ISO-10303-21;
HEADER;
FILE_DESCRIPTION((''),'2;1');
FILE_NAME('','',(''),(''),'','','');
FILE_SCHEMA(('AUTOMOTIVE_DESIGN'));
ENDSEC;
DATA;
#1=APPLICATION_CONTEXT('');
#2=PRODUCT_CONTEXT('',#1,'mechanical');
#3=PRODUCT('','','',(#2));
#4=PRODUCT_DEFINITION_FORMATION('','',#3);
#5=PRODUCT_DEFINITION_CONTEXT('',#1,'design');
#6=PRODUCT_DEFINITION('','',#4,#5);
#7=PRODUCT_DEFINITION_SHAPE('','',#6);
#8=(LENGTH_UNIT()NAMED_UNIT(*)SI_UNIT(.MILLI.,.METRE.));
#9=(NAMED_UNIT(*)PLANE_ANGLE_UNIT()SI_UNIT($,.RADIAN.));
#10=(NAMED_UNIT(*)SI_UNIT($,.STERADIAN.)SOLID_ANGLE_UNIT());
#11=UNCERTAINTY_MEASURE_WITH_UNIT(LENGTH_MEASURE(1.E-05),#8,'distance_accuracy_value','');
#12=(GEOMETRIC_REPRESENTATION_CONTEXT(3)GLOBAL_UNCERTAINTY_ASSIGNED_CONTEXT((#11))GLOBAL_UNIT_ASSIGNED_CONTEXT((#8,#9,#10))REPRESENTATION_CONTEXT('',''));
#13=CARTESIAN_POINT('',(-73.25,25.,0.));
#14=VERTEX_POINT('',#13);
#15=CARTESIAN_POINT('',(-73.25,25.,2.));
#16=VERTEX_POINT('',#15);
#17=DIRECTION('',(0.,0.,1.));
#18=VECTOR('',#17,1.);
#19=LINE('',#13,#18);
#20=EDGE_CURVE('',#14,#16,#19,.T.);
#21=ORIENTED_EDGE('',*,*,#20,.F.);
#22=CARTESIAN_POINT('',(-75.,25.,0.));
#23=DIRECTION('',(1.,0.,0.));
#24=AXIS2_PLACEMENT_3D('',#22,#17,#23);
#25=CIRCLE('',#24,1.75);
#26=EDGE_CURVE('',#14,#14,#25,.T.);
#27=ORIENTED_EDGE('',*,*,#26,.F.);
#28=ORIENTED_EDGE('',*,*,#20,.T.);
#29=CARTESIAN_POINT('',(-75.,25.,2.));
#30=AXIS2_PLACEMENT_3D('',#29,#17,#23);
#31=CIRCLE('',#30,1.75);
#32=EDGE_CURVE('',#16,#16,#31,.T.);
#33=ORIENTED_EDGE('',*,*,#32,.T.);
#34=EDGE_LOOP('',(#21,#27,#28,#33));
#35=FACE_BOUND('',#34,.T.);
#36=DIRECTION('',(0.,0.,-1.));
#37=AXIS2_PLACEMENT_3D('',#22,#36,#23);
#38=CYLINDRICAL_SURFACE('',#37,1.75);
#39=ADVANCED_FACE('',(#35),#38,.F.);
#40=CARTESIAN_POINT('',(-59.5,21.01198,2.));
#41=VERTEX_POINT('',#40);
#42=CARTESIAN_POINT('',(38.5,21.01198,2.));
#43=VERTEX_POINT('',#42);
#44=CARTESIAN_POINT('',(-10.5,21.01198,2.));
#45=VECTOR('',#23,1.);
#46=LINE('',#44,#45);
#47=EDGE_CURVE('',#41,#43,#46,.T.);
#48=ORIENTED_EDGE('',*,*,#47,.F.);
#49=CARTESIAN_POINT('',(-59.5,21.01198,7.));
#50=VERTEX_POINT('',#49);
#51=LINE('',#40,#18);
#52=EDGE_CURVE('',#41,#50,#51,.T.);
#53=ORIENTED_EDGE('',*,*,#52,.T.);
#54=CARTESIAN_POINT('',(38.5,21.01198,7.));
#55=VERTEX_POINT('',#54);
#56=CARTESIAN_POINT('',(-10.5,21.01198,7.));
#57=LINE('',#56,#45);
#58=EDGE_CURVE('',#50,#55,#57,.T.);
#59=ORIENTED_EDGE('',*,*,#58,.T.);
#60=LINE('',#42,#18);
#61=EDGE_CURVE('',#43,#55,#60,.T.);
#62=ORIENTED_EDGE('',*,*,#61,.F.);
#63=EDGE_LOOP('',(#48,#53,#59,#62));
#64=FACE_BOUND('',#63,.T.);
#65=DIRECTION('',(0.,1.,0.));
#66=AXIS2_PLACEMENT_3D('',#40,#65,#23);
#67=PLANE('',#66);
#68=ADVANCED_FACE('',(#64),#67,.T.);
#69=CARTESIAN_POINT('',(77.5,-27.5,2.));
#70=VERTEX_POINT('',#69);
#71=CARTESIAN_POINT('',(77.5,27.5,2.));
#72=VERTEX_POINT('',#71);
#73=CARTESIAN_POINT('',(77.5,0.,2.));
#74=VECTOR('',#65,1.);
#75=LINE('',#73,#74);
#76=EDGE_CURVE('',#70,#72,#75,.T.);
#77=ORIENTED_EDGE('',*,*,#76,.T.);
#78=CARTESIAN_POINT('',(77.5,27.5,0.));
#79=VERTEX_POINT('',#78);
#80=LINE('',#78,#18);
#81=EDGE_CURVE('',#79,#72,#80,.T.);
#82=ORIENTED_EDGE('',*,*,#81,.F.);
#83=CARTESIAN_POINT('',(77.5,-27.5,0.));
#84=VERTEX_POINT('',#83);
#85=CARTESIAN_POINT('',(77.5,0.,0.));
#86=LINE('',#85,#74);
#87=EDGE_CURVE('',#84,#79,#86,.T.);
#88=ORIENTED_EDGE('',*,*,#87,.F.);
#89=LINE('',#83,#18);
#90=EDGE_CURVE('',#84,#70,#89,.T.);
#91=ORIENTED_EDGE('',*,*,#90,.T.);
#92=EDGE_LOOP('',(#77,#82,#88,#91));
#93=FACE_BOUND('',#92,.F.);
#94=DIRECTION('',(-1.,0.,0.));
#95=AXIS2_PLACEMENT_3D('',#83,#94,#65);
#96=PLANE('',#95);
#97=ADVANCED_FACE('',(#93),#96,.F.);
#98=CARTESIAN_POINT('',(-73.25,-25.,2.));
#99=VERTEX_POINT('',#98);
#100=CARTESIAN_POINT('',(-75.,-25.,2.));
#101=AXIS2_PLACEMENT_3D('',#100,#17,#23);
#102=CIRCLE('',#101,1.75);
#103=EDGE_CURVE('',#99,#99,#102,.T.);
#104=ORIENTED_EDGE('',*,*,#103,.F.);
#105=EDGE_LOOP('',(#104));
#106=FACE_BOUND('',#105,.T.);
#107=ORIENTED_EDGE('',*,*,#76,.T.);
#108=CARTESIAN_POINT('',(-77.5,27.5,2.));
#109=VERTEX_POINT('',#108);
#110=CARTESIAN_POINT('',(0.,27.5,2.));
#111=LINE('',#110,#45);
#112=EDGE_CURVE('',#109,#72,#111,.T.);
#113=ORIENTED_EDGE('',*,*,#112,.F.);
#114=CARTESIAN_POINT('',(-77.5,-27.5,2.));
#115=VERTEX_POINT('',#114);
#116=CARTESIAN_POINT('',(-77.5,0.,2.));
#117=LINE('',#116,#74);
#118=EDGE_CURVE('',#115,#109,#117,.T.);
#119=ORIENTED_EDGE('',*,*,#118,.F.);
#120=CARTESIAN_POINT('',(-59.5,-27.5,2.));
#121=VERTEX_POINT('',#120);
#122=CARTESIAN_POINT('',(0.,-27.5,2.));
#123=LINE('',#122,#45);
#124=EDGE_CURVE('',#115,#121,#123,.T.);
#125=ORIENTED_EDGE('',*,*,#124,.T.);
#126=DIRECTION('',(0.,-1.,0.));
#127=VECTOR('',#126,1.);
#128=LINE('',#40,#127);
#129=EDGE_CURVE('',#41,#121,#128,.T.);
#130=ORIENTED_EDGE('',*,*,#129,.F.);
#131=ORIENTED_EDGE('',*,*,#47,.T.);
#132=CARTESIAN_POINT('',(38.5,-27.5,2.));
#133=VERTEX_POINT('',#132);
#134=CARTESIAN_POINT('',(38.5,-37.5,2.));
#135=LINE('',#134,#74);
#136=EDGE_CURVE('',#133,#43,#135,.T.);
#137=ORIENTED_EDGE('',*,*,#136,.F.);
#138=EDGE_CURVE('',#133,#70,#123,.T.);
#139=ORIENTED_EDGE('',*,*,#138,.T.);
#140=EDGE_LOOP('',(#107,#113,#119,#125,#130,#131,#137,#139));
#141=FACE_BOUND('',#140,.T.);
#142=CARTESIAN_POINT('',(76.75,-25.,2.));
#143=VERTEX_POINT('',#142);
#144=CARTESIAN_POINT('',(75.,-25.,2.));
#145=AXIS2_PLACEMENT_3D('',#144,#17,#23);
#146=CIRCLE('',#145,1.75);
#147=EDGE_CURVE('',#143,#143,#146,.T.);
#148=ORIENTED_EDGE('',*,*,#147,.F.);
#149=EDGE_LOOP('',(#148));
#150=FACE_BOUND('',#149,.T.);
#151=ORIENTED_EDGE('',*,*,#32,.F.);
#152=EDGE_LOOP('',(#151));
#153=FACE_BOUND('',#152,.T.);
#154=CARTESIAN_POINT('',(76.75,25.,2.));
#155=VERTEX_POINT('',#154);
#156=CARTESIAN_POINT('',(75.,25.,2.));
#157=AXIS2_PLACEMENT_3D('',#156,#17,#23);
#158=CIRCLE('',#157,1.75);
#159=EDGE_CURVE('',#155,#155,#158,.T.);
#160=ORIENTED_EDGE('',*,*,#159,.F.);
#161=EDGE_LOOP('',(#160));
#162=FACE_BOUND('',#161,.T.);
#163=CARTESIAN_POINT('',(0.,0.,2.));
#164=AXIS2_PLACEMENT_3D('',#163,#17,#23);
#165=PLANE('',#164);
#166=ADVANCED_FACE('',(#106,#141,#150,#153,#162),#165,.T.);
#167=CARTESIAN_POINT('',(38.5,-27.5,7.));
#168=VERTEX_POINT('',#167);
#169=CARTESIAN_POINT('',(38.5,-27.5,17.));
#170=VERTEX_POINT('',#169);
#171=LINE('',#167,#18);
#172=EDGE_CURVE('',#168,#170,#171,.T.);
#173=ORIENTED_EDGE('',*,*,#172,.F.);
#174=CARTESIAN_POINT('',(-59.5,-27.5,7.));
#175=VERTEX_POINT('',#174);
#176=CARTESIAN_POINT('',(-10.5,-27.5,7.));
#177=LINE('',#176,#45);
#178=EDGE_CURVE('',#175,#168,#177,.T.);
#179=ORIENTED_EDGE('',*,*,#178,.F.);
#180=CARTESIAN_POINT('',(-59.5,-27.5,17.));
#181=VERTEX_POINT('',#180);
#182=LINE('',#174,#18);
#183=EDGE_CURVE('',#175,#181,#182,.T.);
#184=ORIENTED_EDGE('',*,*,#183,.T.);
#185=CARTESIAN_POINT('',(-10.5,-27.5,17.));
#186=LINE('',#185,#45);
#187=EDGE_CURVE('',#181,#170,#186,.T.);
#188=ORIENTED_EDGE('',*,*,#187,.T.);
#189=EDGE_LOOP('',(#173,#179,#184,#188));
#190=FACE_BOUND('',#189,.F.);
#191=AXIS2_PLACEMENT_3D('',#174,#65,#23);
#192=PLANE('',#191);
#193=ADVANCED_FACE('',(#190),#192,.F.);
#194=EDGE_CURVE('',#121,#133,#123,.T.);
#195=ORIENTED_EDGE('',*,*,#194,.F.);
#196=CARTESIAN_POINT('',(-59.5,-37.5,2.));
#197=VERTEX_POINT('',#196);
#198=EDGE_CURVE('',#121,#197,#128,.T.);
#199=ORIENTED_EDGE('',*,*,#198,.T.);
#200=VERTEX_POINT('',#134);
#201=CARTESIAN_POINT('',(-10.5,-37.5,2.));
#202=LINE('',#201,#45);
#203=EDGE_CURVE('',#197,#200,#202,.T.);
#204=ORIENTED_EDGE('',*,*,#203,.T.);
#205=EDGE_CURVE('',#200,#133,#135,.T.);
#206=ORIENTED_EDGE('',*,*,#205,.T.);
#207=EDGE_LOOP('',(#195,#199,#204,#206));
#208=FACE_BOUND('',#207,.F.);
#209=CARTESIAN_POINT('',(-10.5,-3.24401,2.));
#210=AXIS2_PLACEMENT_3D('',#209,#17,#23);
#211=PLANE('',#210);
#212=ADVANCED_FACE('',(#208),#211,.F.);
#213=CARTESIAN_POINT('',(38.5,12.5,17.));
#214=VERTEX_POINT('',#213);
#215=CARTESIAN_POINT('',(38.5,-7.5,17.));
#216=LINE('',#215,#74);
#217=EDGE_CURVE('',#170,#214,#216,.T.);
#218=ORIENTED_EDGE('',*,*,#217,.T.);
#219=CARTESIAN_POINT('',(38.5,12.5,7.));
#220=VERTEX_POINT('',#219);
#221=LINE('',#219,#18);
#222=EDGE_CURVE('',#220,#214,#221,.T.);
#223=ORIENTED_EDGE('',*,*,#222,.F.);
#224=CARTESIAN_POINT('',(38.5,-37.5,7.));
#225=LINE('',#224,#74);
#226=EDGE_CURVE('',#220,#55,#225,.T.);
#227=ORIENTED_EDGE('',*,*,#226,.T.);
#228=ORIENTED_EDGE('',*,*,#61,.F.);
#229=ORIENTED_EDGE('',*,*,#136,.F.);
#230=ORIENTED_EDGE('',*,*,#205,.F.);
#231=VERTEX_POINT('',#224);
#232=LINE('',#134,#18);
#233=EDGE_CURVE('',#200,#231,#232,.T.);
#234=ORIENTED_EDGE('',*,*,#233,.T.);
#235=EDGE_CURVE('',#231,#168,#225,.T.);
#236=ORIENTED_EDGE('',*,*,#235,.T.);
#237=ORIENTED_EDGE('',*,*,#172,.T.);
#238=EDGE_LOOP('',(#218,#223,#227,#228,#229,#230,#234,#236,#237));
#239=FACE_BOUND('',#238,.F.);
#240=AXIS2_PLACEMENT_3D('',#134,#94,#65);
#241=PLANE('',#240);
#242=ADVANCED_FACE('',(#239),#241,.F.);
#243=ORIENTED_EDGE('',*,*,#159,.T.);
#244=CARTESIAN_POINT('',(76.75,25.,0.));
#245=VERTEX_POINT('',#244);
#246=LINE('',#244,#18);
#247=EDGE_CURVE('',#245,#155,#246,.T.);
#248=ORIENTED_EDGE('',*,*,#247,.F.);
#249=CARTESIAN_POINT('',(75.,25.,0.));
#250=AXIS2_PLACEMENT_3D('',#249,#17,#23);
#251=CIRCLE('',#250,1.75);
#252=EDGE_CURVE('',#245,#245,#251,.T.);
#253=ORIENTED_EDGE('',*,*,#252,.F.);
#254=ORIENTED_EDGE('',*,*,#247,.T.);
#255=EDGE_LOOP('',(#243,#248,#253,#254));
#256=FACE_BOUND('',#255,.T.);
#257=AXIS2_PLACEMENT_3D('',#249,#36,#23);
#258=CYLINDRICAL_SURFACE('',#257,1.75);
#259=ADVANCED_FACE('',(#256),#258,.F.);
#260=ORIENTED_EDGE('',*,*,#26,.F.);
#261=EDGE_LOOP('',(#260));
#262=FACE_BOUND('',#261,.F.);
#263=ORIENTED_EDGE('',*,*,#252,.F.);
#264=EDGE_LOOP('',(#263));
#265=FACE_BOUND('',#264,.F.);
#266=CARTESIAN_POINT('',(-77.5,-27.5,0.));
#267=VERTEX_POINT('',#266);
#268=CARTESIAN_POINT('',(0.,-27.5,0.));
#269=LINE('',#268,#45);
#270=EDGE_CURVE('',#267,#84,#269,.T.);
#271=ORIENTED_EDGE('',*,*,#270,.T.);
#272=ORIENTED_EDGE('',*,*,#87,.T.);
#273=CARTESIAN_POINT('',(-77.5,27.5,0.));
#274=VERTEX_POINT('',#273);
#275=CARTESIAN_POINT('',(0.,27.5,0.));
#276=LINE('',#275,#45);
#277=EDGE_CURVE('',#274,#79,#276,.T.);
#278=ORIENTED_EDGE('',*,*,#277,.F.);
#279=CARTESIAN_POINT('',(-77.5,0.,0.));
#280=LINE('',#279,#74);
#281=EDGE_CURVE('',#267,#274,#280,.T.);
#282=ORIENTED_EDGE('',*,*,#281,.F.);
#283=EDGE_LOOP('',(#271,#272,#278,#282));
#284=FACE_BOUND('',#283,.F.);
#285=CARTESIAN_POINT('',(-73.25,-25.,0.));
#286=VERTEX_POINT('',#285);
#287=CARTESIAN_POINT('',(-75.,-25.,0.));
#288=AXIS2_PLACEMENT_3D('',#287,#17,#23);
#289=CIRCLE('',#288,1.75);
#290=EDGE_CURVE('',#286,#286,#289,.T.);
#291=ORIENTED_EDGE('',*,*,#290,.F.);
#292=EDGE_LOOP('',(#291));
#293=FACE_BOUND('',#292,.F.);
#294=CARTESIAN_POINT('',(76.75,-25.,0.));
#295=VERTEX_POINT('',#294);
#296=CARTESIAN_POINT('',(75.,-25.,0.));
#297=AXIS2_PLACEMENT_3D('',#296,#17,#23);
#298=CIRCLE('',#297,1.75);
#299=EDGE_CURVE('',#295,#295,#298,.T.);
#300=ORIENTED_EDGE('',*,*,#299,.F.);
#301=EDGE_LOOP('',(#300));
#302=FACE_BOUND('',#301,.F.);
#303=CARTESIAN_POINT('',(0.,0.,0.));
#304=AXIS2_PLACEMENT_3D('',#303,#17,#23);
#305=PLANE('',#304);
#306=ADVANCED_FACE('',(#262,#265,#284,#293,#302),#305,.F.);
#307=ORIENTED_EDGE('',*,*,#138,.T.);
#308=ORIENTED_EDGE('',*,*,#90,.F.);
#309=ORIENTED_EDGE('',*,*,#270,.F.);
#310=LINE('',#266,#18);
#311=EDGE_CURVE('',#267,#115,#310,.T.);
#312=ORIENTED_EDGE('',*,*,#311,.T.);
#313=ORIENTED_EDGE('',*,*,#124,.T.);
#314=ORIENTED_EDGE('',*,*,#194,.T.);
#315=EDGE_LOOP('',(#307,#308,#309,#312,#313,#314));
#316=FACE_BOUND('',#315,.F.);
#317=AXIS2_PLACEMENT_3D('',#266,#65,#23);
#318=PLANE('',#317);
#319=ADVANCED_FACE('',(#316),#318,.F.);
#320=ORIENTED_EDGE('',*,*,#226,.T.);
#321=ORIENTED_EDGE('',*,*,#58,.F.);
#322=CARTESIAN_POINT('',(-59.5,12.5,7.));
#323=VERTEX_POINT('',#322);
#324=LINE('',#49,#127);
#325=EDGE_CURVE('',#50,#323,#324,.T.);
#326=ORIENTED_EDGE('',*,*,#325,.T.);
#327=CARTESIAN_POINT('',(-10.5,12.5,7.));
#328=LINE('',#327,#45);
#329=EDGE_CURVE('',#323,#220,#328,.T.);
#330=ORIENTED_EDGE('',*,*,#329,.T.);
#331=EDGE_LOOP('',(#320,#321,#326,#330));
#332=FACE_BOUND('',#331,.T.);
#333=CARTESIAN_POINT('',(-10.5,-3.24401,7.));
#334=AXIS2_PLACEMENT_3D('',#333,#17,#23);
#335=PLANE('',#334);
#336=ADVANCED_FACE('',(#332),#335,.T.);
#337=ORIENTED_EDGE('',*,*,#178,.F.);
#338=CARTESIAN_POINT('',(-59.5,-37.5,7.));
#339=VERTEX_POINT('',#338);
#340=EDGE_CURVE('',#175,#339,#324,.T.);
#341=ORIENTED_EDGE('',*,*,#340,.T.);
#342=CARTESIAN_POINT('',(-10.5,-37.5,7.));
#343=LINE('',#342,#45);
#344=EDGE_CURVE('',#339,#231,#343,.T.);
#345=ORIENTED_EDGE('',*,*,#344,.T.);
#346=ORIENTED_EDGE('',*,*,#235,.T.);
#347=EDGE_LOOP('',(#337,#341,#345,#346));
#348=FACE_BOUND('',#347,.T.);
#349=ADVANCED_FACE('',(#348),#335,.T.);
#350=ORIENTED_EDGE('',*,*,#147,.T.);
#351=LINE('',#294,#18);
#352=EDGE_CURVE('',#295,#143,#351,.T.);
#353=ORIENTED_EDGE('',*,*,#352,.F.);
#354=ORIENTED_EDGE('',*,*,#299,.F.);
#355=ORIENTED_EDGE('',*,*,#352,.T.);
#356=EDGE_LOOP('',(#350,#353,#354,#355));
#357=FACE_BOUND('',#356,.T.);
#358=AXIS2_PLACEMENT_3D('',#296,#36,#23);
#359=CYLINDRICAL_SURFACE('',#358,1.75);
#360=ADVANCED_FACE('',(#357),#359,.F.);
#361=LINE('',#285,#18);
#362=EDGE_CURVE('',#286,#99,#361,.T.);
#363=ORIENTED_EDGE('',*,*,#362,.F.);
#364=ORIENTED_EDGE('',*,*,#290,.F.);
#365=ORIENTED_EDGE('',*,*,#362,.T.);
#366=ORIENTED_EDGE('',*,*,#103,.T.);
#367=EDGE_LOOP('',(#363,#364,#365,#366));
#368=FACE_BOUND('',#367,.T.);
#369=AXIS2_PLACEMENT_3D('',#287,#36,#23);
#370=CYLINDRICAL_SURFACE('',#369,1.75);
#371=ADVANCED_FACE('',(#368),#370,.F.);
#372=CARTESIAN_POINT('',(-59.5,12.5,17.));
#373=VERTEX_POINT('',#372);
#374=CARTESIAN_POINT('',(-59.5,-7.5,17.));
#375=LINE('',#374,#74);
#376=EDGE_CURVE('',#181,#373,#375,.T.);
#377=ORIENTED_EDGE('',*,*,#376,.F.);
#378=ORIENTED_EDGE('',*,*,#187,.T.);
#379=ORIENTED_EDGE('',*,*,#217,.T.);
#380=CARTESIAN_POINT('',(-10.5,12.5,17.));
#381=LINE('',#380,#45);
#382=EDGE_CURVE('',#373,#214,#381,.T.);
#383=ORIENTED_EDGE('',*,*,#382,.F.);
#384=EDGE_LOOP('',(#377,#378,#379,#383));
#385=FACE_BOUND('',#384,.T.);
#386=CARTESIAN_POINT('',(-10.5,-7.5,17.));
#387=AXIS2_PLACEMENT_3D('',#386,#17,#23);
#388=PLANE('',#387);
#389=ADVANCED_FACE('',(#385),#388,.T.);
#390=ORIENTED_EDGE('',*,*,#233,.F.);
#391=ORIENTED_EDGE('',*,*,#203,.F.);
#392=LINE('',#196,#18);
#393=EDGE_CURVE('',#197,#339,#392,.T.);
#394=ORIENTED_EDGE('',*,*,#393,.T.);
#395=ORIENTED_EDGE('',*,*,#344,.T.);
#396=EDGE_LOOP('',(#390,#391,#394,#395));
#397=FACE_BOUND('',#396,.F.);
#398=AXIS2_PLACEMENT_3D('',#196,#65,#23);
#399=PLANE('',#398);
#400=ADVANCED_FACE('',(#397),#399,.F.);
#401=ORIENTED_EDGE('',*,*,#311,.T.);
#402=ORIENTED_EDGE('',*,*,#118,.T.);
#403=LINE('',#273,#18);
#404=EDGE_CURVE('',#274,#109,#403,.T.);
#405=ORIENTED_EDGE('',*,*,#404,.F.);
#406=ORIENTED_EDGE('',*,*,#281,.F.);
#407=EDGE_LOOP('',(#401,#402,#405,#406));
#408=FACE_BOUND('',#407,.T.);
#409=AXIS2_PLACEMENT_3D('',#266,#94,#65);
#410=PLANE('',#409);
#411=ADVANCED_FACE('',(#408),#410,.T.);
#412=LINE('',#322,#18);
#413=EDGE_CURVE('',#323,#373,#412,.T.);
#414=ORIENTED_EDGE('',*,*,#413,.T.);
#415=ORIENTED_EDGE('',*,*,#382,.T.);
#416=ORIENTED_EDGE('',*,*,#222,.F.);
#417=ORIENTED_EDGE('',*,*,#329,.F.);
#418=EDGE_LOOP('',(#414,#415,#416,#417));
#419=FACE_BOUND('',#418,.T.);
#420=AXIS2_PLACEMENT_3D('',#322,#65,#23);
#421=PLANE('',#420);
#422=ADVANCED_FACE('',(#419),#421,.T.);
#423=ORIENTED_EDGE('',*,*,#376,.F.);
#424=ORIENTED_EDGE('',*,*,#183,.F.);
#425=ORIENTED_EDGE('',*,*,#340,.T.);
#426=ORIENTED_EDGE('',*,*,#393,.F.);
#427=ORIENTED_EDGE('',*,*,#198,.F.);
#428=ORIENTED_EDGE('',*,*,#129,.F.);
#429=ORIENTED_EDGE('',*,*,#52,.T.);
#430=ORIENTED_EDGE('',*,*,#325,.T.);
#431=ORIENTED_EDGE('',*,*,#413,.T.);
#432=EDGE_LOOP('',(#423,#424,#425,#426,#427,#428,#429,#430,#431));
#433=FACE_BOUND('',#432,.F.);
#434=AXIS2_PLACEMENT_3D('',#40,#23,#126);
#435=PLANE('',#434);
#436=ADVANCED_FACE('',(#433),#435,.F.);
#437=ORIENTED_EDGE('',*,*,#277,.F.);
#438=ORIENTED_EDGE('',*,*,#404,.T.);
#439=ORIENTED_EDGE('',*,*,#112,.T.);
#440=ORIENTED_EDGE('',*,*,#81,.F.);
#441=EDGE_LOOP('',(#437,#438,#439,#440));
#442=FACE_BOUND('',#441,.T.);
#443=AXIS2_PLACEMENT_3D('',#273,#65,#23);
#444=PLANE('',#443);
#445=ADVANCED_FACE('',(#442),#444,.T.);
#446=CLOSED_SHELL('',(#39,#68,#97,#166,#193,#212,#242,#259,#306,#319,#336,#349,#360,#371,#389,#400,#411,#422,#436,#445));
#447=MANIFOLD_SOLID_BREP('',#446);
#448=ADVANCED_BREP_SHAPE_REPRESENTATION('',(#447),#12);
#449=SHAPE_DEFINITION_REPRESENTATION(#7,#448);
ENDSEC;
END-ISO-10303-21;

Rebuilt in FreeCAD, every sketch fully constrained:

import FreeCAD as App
import Part
import Sketcher
from FreeCAD import Vector
Q = App.Units.Quantity

doc = App.newDocument("Part")
body = doc.addObject("PartDesign::Body", "Body")

# Sketch on XY plane
sketch1 = body.newObject("Sketcher::SketchObject", "Sketch")
sketch1.AttachmentSupport = (doc.getObject("XY_Plane"), [""])
sketch1.MapMode = "FlatFace"
sketch1.addGeometry(Part.LineSegment(Vector(-77.5, 27.5, 0), Vector(-77.5, -27.5, 0)), False)
sketch1.addGeometry(Part.LineSegment(Vector(-77.5, -27.5, 0), Vector(77.5, -27.5, 0)), False)
sketch1.addGeometry(Part.LineSegment(Vector(77.5, -27.5, 0), Vector(77.5, 27.5, 0)), False)
sketch1.addGeometry(Part.LineSegment(Vector(77.5, 27.5, 0), Vector(-77.5, 27.5, 0)), False)
sketch1.addGeometry(Part.Circle(Vector(-75, -25, 0), Vector(0, 0, 1), 1.8), False)
sketch1.addGeometry(Part.Circle(Vector(75, -25, 0), Vector(0, 0, 1), 1.8), False)
sketch1.addGeometry(Part.Circle(Vector(-75, 25, 0), Vector(0, 0, 1), 1.8), False)
sketch1.addGeometry(Part.Circle(Vector(75, 25, 0), Vector(0, 0, 1), 1.8), False)
sketch1.addConstraint(Sketcher.Constraint("Coincident", 0, 2, 1, 1))
sketch1.addConstraint(Sketcher.Constraint("Coincident", 1, 2, 2, 1))
sketch1.addConstraint(Sketcher.Constraint("Coincident", 2, 2, 3, 1))
sketch1.addConstraint(Sketcher.Constraint("Coincident", 3, 2, 0, 1))
sketch1.addConstraint(Sketcher.Constraint("Vertical", 0))
sketch1.addConstraint(Sketcher.Constraint("Horizontal", 1))
sketch1.addConstraint(Sketcher.Constraint("Vertical", 2))
sketch1.addConstraint(Sketcher.Constraint("Horizontal", 3))
sketch1.addConstraint(Sketcher.Constraint("Equal", 4, 5))
sketch1.addConstraint(Sketcher.Constraint("Equal", 5, 6))
sketch1.addConstraint(Sketcher.Constraint("Equal", 6, 7))
sketch1.addConstraint(Sketcher.Constraint("Symmetric", 5, 3, 6, 3, -1, 1))
sketch1.addConstraint(Sketcher.Constraint("Symmetric", 4, 3, 7, 3, -1, 1))
sketch1.addConstraint(Sketcher.Constraint("Symmetric", 0, 2, 2, 2, -1, 1))
sketch1.addConstraint(Sketcher.Constraint("Symmetric", 4, 3, 5, 3, -2))
sketch1.addConstraint(Sketcher.Constraint("Diameter", 4, Q("3.5 mm")))
sketch1.addConstraint(Sketcher.Constraint("DistanceX", 1, 1, 1, 2, Q("155 mm")))
sketch1.addConstraint(Sketcher.Constraint("DistanceY", 0, 2, 0, 1, Q("55 mm")))
sketch1.addConstraint(Sketcher.Constraint("DistanceX", 4, 3, -1, 1, Q("75 mm")))
sketch1.addConstraint(Sketcher.Constraint("DistanceY", 4, 3, -1, 1, Q("25 mm")))
pad1 = body.newObject("PartDesign::Pad", "Pad")
pad1.Profile = sketch1
pad1.Length = 2

# Sketch on XY plane
sketch2 = body.newObject("Sketcher::SketchObject", "Sketch001")
sketch2.AttachmentSupport = (doc.getObject("XY_Plane"), [""])
sketch2.MapMode = "FlatFace"
sketch2.AttachmentOffset = App.Placement(Vector(0, 0, 2), App.Rotation())
sketch2.addGeometry(Part.LineSegment(Vector(-60, 21, 0), Vector(-60, -38, 0)), False)
sketch2.addGeometry(Part.LineSegment(Vector(-60, -38, 0), Vector(38, -38, 0)), False)
sketch2.addGeometry(Part.LineSegment(Vector(38, -38, 0), Vector(38, 21, 0)), False)
sketch2.addGeometry(Part.LineSegment(Vector(38, 21, 0), Vector(-60, 21, 0)), False)
sketch2.addConstraint(Sketcher.Constraint("Coincident", 0, 2, 1, 1))
sketch2.addConstraint(Sketcher.Constraint("Coincident", 1, 2, 2, 1))
sketch2.addConstraint(Sketcher.Constraint("Coincident", 2, 2, 3, 1))
sketch2.addConstraint(Sketcher.Constraint("Coincident", 3, 2, 0, 1))
sketch2.addConstraint(Sketcher.Constraint("Vertical", 0))
sketch2.addConstraint(Sketcher.Constraint("Horizontal", 1))
sketch2.addConstraint(Sketcher.Constraint("Vertical", 2))
sketch2.addConstraint(Sketcher.Constraint("Horizontal", 3))
sketch2.addConstraint(Sketcher.Constraint("DistanceX", 1, 1, 1, 2, Q("98 mm")))
sketch2.addConstraint(Sketcher.Constraint("DistanceX", 0, 2, -1, 1, Q("59.5 mm")))
sketch2.addConstraint(Sketcher.Constraint("DistanceY", 0, 2, -1, 1, Q("37.5 mm")))
sketch2.addConstraint(Sketcher.Constraint("DistanceY", 0, 2, 0, 1, Q("58.51198 mm")))
pad2 = body.newObject("PartDesign::Pad", "Pad001")
pad2.Profile = sketch2
pad2.Length = 5

# Sketch on XY plane
sketch3 = body.newObject("Sketcher::SketchObject", "Sketch002")
sketch3.AttachmentSupport = (doc.getObject("XY_Plane"), [""])
sketch3.MapMode = "FlatFace"
sketch3.AttachmentOffset = App.Placement(Vector(0, 0, 7), App.Rotation())
sketch3.addGeometry(Part.LineSegment(Vector(-60, 12, 0), Vector(-60, -28, 0)), False)
sketch3.addGeometry(Part.LineSegment(Vector(-60, -28, 0), Vector(38, -28, 0)), False)
sketch3.addGeometry(Part.LineSegment(Vector(38, -28, 0), Vector(38, 12, 0)), False)
sketch3.addGeometry(Part.LineSegment(Vector(38, 12, 0), Vector(-60, 12, 0)), False)
sketch3.addConstraint(Sketcher.Constraint("Coincident", 0, 2, 1, 1))
sketch3.addConstraint(Sketcher.Constraint("Coincident", 1, 2, 2, 1))
sketch3.addConstraint(Sketcher.Constraint("Coincident", 2, 2, 3, 1))
sketch3.addConstraint(Sketcher.Constraint("Coincident", 3, 2, 0, 1))
sketch3.addConstraint(Sketcher.Constraint("Vertical", 0))
sketch3.addConstraint(Sketcher.Constraint("Horizontal", 1))
sketch3.addConstraint(Sketcher.Constraint("Vertical", 2))
sketch3.addConstraint(Sketcher.Constraint("Horizontal", 3))
sketch3.addConstraint(Sketcher.Constraint("DistanceX", 1, 1, 1, 2, Q("98 mm")))
sketch3.addConstraint(Sketcher.Constraint("DistanceY", 0, 2, 0, 1, Q("40 mm")))
sketch3.addConstraint(Sketcher.Constraint("DistanceX", 0, 2, -1, 1, Q("59.5 mm")))
sketch3.addConstraint(Sketcher.Constraint("DistanceY", 0, 2, -1, 1, Q("27.5 mm")))
pad3 = body.newObject("PartDesign::Pad", "Pad002")
pad3.Profile = sketch3
pad3.Length = 10

doc.recompute()
